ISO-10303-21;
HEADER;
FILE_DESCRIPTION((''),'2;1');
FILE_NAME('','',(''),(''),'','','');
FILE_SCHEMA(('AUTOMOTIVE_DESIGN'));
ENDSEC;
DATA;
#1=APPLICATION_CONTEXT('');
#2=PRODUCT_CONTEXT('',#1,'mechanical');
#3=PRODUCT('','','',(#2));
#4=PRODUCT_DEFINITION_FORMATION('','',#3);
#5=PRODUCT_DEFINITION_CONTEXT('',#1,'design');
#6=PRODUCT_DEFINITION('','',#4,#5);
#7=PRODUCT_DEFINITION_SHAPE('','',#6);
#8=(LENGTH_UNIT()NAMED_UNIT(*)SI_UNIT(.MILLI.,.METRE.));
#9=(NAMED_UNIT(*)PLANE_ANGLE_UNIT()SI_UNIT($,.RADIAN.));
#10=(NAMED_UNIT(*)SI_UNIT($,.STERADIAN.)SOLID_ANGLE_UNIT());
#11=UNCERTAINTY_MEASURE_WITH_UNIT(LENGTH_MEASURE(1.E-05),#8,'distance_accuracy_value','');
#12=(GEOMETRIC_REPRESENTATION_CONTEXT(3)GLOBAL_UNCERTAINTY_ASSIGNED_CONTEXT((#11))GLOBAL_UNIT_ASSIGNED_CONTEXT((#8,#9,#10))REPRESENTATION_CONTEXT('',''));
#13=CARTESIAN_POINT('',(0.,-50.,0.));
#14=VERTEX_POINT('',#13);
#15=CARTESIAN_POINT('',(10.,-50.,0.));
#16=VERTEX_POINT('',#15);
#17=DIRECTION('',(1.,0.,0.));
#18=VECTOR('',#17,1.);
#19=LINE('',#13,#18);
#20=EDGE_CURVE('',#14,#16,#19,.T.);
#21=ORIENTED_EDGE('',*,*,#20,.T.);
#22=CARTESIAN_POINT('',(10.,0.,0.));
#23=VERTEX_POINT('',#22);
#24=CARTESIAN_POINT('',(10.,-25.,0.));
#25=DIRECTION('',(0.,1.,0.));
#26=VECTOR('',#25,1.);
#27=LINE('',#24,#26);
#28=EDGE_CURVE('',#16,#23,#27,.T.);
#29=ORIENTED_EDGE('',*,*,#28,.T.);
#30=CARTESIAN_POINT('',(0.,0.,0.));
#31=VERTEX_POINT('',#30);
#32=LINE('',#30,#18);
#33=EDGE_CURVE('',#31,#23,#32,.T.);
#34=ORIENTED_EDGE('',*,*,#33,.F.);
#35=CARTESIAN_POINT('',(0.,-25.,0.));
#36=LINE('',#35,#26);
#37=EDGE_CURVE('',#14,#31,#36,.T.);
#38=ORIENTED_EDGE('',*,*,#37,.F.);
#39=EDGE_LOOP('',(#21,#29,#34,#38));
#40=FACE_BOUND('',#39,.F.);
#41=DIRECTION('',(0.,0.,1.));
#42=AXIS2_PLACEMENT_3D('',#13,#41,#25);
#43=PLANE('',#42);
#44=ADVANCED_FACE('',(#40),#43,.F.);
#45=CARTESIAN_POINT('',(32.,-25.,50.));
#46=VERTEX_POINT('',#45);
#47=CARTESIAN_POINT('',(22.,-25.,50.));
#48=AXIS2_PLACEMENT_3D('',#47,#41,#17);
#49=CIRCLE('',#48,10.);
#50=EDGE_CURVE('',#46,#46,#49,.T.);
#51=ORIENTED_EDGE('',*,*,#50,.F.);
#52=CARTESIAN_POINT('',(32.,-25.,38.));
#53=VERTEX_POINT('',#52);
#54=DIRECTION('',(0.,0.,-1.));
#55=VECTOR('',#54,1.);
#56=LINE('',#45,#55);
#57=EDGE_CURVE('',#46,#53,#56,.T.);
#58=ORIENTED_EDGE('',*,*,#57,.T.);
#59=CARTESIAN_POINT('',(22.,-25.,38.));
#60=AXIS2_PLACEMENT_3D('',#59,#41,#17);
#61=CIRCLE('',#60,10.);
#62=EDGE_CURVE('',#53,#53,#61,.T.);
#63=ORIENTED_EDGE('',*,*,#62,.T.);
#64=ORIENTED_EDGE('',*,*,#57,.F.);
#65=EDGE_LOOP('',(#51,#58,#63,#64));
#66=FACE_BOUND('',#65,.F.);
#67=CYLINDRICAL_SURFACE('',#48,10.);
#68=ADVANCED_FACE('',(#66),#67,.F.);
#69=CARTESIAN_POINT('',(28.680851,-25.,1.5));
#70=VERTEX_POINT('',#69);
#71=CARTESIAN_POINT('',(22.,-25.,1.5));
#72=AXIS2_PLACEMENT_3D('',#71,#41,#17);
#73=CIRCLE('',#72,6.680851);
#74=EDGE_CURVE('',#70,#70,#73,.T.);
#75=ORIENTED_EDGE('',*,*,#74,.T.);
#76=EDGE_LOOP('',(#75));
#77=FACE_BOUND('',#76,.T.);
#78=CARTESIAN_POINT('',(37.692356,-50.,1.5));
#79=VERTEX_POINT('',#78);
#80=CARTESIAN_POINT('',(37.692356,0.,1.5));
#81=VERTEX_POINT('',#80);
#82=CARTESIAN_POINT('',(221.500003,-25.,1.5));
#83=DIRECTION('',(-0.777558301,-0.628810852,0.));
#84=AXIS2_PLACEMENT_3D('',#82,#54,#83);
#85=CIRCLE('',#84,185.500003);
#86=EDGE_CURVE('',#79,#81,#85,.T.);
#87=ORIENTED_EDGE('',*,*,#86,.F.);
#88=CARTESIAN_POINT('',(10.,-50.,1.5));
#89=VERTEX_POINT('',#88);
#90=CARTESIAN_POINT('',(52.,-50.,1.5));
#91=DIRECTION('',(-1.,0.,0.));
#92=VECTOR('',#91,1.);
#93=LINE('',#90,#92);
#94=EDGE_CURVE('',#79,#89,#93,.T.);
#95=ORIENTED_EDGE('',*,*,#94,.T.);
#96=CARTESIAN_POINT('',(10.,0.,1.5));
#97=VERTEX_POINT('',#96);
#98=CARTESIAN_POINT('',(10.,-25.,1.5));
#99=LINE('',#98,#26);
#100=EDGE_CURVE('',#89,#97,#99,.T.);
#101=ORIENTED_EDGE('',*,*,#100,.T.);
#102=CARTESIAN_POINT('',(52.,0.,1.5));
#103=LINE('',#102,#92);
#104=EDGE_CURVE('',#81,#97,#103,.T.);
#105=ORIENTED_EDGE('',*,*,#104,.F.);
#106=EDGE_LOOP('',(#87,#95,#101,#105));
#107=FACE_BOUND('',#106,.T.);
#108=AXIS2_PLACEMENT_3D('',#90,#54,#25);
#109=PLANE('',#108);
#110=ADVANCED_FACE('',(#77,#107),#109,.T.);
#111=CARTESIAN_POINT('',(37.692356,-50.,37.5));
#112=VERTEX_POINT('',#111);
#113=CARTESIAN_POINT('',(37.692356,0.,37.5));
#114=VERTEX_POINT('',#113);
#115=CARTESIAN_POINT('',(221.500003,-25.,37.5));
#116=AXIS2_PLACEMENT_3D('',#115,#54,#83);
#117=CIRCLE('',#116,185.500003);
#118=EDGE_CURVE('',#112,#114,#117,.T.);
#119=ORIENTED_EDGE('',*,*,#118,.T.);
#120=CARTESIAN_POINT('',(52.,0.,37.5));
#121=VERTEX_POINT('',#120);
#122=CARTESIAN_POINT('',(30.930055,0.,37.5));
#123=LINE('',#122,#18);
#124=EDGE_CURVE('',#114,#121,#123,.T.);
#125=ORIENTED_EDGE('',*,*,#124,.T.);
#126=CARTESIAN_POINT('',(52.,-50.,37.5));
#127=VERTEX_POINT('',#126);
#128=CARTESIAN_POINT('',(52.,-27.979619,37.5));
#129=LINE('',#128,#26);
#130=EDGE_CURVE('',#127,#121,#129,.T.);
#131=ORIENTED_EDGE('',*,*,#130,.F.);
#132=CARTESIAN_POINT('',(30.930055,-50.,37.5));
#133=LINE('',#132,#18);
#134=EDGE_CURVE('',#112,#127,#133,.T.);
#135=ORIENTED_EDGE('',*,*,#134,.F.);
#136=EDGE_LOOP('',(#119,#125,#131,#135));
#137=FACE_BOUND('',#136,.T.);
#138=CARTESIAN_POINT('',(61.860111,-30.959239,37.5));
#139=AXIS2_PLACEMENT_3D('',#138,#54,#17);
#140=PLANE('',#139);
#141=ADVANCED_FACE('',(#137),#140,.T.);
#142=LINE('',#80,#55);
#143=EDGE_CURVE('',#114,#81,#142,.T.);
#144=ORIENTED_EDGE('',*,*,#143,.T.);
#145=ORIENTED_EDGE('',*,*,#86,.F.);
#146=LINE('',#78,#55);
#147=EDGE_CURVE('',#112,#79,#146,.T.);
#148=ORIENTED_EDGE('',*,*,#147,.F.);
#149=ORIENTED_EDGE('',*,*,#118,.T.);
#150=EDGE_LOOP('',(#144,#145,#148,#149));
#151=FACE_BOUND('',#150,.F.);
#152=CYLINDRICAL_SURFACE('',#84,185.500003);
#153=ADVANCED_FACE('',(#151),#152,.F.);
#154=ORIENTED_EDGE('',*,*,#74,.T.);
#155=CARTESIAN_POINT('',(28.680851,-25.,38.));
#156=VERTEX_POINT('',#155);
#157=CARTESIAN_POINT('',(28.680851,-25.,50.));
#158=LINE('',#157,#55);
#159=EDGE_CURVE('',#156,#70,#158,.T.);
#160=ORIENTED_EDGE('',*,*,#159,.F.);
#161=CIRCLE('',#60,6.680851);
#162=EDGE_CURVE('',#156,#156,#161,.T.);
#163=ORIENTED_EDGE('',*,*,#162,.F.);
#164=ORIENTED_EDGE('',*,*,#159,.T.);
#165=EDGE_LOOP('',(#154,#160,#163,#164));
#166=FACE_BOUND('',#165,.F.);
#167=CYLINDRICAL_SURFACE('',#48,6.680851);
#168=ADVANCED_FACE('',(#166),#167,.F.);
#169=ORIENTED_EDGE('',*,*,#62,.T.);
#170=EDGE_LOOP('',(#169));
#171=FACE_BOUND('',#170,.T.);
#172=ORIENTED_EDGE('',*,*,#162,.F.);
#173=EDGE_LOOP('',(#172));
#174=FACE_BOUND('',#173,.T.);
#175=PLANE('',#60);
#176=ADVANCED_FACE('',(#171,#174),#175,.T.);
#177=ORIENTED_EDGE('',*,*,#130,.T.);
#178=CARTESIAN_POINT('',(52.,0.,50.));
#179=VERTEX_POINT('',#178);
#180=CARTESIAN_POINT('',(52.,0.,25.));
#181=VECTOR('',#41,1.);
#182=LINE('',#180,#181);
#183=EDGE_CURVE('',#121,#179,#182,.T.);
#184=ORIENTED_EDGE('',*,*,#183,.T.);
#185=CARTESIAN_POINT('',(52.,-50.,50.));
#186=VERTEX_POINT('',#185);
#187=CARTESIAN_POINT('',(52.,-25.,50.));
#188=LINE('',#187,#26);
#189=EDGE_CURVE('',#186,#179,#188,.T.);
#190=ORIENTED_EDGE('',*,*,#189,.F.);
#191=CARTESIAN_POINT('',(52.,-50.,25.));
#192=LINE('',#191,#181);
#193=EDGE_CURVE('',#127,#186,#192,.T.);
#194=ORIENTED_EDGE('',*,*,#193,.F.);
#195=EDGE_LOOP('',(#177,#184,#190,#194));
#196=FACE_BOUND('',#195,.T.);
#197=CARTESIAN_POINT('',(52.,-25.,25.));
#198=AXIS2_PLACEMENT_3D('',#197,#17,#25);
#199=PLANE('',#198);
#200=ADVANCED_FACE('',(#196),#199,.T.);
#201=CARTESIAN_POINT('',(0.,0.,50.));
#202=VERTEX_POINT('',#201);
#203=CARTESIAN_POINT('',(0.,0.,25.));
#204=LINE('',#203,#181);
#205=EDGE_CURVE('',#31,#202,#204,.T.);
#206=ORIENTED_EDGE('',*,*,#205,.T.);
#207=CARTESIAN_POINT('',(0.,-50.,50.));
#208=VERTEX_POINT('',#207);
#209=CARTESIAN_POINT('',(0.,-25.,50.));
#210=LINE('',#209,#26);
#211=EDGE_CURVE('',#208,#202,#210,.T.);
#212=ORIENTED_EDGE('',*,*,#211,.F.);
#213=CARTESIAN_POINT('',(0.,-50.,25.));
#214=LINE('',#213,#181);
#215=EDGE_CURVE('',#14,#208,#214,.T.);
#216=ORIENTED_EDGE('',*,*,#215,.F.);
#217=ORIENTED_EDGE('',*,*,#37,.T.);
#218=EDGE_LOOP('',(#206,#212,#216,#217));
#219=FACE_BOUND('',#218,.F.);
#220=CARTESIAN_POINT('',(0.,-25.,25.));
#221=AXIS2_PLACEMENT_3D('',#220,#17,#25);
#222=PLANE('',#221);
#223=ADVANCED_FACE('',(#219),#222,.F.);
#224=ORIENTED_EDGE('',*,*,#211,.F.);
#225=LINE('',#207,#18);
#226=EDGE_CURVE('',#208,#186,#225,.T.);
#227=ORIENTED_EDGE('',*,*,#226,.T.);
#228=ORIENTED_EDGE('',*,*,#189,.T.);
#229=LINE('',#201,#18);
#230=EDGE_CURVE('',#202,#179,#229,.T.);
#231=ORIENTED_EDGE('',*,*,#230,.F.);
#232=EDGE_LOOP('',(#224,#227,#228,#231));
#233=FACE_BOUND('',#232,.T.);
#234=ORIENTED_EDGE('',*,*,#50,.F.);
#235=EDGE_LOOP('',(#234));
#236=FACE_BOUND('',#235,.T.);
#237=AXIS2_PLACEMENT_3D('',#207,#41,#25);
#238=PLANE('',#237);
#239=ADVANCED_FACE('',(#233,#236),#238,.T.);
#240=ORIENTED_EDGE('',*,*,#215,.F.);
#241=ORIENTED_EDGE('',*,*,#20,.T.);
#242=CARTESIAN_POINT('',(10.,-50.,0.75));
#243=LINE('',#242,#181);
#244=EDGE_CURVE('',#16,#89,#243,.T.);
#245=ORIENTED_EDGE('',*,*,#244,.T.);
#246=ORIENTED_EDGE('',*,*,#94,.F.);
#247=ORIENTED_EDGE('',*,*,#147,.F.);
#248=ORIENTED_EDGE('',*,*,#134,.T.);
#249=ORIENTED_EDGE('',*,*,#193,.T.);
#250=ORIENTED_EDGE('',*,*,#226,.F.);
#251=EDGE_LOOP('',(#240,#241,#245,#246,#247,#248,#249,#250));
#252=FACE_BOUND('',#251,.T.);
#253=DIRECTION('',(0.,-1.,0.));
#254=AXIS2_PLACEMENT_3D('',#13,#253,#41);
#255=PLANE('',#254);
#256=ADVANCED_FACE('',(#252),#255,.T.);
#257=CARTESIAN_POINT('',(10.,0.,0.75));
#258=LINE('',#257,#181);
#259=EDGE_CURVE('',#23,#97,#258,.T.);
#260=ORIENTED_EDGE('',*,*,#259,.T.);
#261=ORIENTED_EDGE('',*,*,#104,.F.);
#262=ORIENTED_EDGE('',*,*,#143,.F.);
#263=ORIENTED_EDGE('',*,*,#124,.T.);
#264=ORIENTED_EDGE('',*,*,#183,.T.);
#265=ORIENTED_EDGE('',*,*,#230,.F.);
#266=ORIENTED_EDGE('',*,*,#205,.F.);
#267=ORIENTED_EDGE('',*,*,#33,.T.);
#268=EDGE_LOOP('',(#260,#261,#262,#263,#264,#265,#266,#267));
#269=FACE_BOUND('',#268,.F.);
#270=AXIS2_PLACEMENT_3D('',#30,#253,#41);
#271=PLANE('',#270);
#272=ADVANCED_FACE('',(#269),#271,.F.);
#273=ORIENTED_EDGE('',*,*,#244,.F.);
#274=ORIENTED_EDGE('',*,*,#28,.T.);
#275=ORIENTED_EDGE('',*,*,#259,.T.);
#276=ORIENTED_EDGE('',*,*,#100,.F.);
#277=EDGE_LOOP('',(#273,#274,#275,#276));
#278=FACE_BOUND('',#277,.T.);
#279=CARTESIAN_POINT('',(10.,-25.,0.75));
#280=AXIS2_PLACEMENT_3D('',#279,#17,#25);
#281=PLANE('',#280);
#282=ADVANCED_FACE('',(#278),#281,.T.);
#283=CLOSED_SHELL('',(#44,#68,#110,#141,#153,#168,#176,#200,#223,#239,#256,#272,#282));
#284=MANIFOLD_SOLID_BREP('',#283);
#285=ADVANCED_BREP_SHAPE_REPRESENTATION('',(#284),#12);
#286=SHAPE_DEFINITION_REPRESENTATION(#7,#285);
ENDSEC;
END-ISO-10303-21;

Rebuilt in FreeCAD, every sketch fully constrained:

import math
import FreeCAD as App
import Part
import Sketcher

V = App.Vector
Q = App.Units.Quantity


def add_polygon(sketch, points):
    """Adds a closed chain of lines whose ends are joined by coincident constraints."""
    first, n = sketch.GeometryCount, len(points)
    for a, b in zip(points, points[1:] + points[:1]):
        sketch.addGeometry(Part.LineSegment(App.Vector(*a, 0), App.Vector(*b, 0)), False)
    for i in range(n):
        sketch.addConstraint(Sketcher.Constraint("Coincident", first + i, 2, first + (i + 1) % n, 1))

doc = App.newDocument("Part")
body = doc.addObject("PartDesign::Body", "Body")

# Sketch on YZ plane
sketch1 = doc.addObject("Sketcher::SketchObject", "Sketch")
body.addObject(sketch1)
sketch1.AttachmentSupport = (doc.YZ_Plane, [""])
sketch1.MapMode = "FlatFace"
add_polygon(sketch1, [(-50, 50), (-50, 0), (0, 0), (0, 50)])  # lines 0-3
sketch1.addConstraint([
    Sketcher.Constraint("Vertical", 0),
    Sketcher.Constraint("Horizontal", 1),
    Sketcher.Constraint("Vertical", 2),
    Sketcher.Constraint("Horizontal", 3),
    Sketcher.Constraint("Coincident", 1, 2, -1, 1),
    Sketcher.Constraint("Equal", 3, 0),
    Sketcher.Constraint("DistanceX", 1, 1, 1, 2, Q("50 mm")),
])
pad1 = doc.addObject("PartDesign::Pad", "Pad")
body.addObject(pad1)
pad1.Profile = sketch1
pad1.Length = 52

# Sketch on YZ plane
sketch2 = doc.addObject("Sketcher::SketchObject", "Sketch001")
body.addObject(sketch2)
sketch2.AttachmentSupport = (doc.YZ_Plane, [""])
sketch2.MapMode = "FlatFace"
sketch2.AttachmentOffset = App.Placement(V(0, 0, 52), App.Rotation())
add_polygon(sketch2, [(-50, 1.5), (-50, 0), (0, 0), (0, 1.5)])  # lines 0-3
sketch2.addConstraint([
    Sketcher.Constraint("Vertical", 0),
    Sketcher.Constraint("Horizontal", 1),
    Sketcher.Constraint("Vertical", 2),
    Sketcher.Constraint("Horizontal", 3),
    Sketcher.Constraint("Coincident", 1, 2, -1, 1),
    Sketcher.Constraint("DistanceX", 1, 1, 1, 2, Q("50 mm")),
    Sketcher.Constraint("DistanceY", 0, 2, 0, 1, Q("1.5 mm")),
])
pocket1 = doc.addObject("PartDesign::Pocket", "Pocket")
body.addObject(pocket1)
pocket1.Profile = sketch2
pocket1.Length = 42

# Sketch on XY plane
sketch3 = doc.addObject("Sketcher::SketchObject", "Sketch002")
body.addObject(sketch3)
sketch3.AttachmentSupport = (doc.XY_Plane, [""])
sketch3.MapMode = "FlatFace"
sketch3.AttachmentOffset = App.Placement(V(0, 0, 1.5), App.Rotation())
sketch3.addGeometry([
    Part.LineSegment(V(69, 81, 0), V(77, -142, 0)),
    Part.ArcOfCircle(Part.Circle(V(222, -25, 0), V(0, 0, 1), 186), math.radians(145), math.radians(219)),
], False)
sketch3.addConstraint([
    Sketcher.Constraint("Coincident", 0, 1, 1, 1),
    Sketcher.Constraint("Coincident", 1, 2, 0, 2),
    Sketcher.Constraint("DistanceY", 1, 3, -1, 1, Q("25 mm")),
    Sketcher.Constraint("Radius", 1, Q("185.500003 mm")),
    Sketcher.Constraint("Distance", 0, Q("222.365428 mm")),
    Sketcher.Constraint("DistanceX", 0, 1, 1, 2, Q("8.294959 mm")),
    Sketcher.Constraint("DistanceX", -1, 1, 1, 3, Q("221.500003 mm")),
])
pocket2 = doc.addObject("PartDesign::Pocket", "Pocket001")
body.addObject(pocket2)
pocket2.Profile = sketch3
pocket2.Length = 36
pocket2.Reversed = True

# Sketch on XY plane
sketch4 = doc.addObject("Sketcher::SketchObject", "Sketch003")
body.addObject(sketch4)
sketch4.AttachmentSupport = (doc.XY_Plane, [""])
sketch4.MapMode = "FlatFace"
sketch4.AttachmentOffset = App.Placement(V(0, 0, 50), App.Rotation())
sketch4.addGeometry(Part.Circle(V(22, -25, 0), V(0, 0, 1), 7), False)
sketch4.addConstraint([
    Sketcher.Constraint("DistanceX", -1, 1, 0, 3, Q("22 mm")),
    Sketcher.Constraint("DistanceY", 0, 3, -1, 1, Q("25 mm")),
    Sketcher.Constraint("Diameter", 0, Q("13.361702 mm")),
])
pocket3 = doc.addObject("PartDesign::Pocket", "Pocket002")
body.addObject(pocket3)
pocket3.Profile = sketch4
pocket3.Length = 65.6

# Sketch on XY plane
sketch5 = doc.addObject("Sketcher::SketchObject", "Sketch004")
body.addObject(sketch5)
sketch5.AttachmentSupport = (doc.XY_Plane, [""])
sketch5.MapMode = "FlatFace"
sketch5.AttachmentOffset = App.Placement(V(0, 0, 50), App.Rotation())
sketch5.addGeometry(Part.Circle(V(22, -25, 0), V(0, 0, 1), 10), False)
sketch5.addConstraint([
    Sketcher.Constraint("Diameter", 0, Q("20 mm")),
    Sketcher.Constraint("DistanceX", -1, 1, 0, 3, Q("22 mm")),
    Sketcher.Constraint("DistanceY", 0, 3, -1, 1, Q("25 mm")),
])
pocket4 = doc.addObject("PartDesign::Pocket", "Pocket003")
body.addObject(pocket4)
pocket4.Profile = sketch5
pocket4.Length = 12

doc.recompute()
